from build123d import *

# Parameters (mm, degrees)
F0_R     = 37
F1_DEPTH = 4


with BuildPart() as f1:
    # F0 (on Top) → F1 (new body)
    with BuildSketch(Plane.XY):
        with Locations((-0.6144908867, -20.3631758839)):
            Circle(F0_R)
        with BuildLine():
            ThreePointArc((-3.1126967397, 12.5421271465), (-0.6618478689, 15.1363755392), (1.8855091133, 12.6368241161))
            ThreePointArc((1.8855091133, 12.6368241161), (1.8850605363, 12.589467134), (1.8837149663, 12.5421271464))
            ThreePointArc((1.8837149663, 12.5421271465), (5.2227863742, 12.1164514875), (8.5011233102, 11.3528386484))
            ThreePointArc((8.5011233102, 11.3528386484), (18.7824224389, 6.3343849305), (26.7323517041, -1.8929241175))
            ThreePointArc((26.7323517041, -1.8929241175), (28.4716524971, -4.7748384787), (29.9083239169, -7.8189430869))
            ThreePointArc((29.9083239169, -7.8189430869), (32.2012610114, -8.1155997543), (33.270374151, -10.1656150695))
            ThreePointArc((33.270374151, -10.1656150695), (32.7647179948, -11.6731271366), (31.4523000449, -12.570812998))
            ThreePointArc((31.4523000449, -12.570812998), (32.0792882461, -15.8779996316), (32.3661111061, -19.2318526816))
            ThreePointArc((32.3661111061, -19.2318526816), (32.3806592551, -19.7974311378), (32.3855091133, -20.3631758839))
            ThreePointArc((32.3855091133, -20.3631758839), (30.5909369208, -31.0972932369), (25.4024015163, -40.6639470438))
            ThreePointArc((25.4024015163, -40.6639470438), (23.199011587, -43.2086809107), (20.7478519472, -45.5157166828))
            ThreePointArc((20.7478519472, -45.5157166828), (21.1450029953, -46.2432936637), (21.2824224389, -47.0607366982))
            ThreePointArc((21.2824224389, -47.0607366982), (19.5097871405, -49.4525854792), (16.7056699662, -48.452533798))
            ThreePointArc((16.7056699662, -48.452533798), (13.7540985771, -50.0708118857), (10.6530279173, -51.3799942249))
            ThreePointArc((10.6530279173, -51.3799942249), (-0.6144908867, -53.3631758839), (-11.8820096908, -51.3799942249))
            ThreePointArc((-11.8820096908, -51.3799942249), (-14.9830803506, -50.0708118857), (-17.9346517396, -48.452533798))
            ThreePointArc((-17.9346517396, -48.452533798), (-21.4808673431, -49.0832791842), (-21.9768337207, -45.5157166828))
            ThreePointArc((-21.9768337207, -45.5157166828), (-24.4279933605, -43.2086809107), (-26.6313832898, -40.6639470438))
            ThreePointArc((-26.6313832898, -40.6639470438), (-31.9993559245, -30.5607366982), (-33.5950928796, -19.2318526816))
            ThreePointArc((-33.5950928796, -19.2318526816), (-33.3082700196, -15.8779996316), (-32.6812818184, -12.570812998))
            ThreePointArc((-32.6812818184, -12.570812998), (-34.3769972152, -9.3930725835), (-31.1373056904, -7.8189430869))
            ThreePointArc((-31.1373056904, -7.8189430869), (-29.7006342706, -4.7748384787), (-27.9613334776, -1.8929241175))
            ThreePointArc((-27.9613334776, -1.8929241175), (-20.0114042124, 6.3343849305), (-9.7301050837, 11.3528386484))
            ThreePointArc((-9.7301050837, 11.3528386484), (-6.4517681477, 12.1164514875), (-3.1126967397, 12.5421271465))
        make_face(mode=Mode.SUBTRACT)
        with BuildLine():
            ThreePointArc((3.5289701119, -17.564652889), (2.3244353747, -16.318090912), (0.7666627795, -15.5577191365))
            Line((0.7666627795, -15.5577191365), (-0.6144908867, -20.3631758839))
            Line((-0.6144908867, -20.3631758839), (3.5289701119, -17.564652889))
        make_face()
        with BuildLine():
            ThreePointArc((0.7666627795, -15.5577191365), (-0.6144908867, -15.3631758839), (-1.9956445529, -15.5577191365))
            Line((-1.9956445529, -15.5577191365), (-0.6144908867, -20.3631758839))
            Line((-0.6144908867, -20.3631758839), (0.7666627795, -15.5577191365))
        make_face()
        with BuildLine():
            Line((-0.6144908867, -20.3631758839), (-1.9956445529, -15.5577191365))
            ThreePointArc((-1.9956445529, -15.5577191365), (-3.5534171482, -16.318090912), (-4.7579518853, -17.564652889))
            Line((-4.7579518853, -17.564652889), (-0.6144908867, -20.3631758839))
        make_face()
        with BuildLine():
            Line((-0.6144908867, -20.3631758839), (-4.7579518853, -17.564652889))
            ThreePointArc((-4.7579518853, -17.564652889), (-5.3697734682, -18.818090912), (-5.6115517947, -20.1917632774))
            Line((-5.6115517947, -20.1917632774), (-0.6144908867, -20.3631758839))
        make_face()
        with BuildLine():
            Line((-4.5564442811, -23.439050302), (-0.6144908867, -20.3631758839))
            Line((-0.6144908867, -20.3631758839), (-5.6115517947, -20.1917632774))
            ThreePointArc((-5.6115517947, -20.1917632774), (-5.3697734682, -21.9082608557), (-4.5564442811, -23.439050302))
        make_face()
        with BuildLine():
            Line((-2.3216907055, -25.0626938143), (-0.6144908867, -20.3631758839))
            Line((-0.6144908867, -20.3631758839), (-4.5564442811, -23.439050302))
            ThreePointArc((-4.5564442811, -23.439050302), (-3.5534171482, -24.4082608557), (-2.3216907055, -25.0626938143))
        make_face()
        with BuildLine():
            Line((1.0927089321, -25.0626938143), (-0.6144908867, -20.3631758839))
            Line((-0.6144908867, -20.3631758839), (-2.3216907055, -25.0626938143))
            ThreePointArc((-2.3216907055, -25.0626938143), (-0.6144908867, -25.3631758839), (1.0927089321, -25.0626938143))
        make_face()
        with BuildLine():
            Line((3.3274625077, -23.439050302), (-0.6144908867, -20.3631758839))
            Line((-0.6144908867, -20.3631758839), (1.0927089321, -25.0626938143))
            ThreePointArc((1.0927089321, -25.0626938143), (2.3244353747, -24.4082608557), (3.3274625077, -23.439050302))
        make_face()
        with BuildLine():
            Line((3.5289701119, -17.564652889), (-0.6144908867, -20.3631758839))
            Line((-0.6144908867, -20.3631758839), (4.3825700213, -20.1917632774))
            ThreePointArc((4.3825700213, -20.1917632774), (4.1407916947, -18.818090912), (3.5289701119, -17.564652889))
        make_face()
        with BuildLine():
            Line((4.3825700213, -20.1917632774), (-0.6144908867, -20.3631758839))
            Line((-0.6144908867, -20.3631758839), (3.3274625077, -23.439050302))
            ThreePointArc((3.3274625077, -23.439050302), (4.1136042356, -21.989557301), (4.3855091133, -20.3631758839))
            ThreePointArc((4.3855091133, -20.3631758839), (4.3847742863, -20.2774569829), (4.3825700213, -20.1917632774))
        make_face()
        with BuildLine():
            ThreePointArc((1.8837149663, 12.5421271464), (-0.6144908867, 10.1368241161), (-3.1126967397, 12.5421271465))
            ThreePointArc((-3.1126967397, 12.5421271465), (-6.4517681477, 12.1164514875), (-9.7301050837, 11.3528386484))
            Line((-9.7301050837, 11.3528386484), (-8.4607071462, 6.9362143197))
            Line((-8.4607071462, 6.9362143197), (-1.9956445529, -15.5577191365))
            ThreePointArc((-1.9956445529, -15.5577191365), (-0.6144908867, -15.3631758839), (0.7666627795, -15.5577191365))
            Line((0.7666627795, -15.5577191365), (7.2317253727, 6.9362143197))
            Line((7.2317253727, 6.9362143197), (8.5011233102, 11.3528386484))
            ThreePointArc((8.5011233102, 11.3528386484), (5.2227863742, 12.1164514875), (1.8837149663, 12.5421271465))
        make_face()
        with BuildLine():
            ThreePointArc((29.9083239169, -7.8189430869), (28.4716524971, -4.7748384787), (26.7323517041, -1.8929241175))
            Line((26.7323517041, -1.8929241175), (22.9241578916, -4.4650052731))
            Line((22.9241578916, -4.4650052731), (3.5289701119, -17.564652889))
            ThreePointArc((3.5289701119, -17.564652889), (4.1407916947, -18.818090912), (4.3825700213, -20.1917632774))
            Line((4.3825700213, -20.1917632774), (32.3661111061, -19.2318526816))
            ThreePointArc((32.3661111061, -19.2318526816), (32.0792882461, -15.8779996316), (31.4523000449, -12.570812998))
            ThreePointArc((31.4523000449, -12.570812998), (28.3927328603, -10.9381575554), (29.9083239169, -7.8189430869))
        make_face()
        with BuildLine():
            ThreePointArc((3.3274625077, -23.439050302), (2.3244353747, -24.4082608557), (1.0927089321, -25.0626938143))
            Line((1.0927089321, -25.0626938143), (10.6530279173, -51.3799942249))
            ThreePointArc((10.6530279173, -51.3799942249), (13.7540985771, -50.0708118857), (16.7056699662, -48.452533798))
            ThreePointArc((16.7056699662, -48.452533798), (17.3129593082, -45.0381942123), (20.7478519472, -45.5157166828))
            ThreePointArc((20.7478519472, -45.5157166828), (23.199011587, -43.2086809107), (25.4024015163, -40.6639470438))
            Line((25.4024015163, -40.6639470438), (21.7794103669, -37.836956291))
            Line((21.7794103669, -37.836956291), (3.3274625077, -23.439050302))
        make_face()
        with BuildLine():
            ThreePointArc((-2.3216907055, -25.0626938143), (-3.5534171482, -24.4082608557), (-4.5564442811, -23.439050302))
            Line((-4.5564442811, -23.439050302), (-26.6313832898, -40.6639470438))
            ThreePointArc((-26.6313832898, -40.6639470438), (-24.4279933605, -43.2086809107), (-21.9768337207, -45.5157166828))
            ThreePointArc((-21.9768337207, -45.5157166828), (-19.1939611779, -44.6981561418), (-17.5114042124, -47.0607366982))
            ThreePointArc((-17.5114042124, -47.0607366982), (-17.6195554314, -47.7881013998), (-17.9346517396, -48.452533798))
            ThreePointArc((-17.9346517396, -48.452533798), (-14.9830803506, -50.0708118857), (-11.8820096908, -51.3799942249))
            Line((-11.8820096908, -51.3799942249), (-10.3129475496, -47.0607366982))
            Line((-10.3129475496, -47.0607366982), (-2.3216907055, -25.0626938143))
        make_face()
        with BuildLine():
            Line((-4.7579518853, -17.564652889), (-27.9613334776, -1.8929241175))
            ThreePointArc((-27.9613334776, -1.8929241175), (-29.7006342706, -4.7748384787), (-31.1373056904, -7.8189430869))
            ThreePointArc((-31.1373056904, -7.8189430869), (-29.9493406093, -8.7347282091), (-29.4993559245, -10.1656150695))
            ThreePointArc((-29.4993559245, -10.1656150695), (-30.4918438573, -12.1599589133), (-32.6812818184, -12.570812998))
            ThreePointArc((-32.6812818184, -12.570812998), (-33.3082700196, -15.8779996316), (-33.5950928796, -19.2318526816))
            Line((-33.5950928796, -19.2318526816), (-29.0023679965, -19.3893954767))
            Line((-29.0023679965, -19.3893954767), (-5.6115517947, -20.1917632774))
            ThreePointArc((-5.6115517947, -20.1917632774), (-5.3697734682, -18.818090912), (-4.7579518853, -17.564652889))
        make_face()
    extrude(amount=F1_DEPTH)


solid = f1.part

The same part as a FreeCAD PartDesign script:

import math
import FreeCAD as App
import Part
import Sketcher
from FreeCAD import Vector

doc = App.newDocument("Part")
body = doc.addObject("PartDesign::Body", "Body")

sketch1 = doc.addObject("Sketcher::SketchObject", "Sketch")
body.addObject(sketch1)
sketch1.AttachmentSupport = (doc.XY_Plane, [""])
sketch1.MapMode = "FlatFace"
sketch1.addGeometry([
    Part.Circle(Vector(-0.614491, -20.363176, 0), Vector(0, 0, 1), 37),
    Part.ArcOfCircle(Part.Circle(Vector(-0.614491, -20.363176, 0), Vector(0, 0, 1), 33), math.radians(106.035371), math.radians(145.964629)),
    Part.LineSegment(Vector(-9.730105, 11.352839, 0), Vector(-8.460707, 6.936214, 0)),
    Part.LineSegment(Vector(-8.460707, 6.936214, 0), Vector(-1.995645, -15.557719, 0)),
    Part.ArcOfCircle(Part.Circle(Vector(-0.614491, -20.363176, 0), Vector(0, 0, 1), 5), math.radians(106.035371), math.radians(145.964629)),
    Part.LineSegment(Vector(-4.757952, -17.564653, 0), Vector(-27.961333, -1.892924, 0)),
    Part.ArcOfCircle(Part.Circle(Vector(-0.614491, -20.363176, 0), Vector(0, 0, 1), 5), math.radians(178.035371), math.radians(217.964629)),
    Part.LineSegment(Vector(-4.556444, -23.43905, 0), Vector(-26.631383, -40.663947, 0)),
    Part.ArcOfCircle(Part.Circle(Vector(-0.614491, -20.363176, 0), Vector(0, 0, 1), 33), math.radians(178.035371), math.radians(217.964629)),
    Part.LineSegment(Vector(-33.595093, -19.231853, 0), Vector(-29.002368, -19.389395, 0)),
    Part.LineSegment(Vector(-29.002368, -19.389395, 0), Vector(-5.611552, -20.191763, 0)),
    Part.ArcOfCircle(Part.Circle(Vector(-31.999356, -10.165615, 0), Vector(0, 0, 1), 2.5), math.radians(69.829186), math.radians(254.170814)),
    Part.ArcOfCircle(Part.Circle(Vector(-31.999356, -10.165615, 0), Vector(0, 0, 1), 2.5), math.radians(0), math.radians(69.829186)),
    Part.ArcOfCircle(Part.Circle(Vector(-31.999356, -10.165615, 0), Vector(0, 0, 1), 2.5), math.radians(-105.829186), math.radians(0)),
    Part.ArcOfCircle(Part.Circle(Vector(-0.614491, -20.363176, 0), Vector(0, 0, 1), 5), math.radians(-109.964629), math.radians(-70.035371)),
    Part.LineSegment(Vector(1.092709, -25.062694, 0), Vector(10.653028, -51.379994, 0)),
    Part.ArcOfCircle(Part.Circle(Vector(-0.614491, -20.363176, 0), Vector(0, 0, 1), 33), math.radians(-109.964629), math.radians(-70.035371)),
    Part.LineSegment(Vector(-11.88201, -51.379994, 0), Vector(-10.312948, -47.060737, 0)),
    Part.LineSegment(Vector(-10.312948, -47.060737, 0), Vector(-2.321691, -25.062694, 0)),
    Part.ArcOfCircle(Part.Circle(Vector(-20.011404, -47.060737, 0), Vector(0, 0, 1), 2.5), math.radians(141.829186), math.radians(326.170814)),
    Part.ArcOfCircle(Part.Circle(Vector(-20.011404, -47.060737, 0), Vector(0, 0, 1), 2.5), math.radians(0), math.radians(141.829186)),
    Part.ArcOfCircle(Part.Circle(Vector(-20.011404, -47.060737, 0), Vector(0, 0, 1), 2.5), math.radians(-33.829186), math.radians(0)),
    Part.ArcOfCircle(Part.Circle(Vector(-0.614491, -20.363176, 0), Vector(0, 0, 1), 5), math.radians(-37.964629), math.radians(0)),
    Part.ArcOfCircle(Part.Circle(Vector(-0.614491, -20.363176, 0), Vector(0, 0, 1), 5), math.radians(0), math.radians(1.964629)),
    Part.LineSegment(Vector(4.38257, -20.191763, 0), Vector(32.366111, -19.231853, 0)),
    Part.ArcOfCircle(Part.Circle(Vector(-0.614491, -20.363176, 0), Vector(0, 0, 1), 33), math.radians(0), math.radians(1.964629)),
    Part.ArcOfCircle(Part.Circle(Vector(-0.614491, -20.363176, 0), Vector(0, 0, 1), 33), math.radians(-37.964629), math.radians(0)),
    Part.LineSegment(Vector(25.402402, -40.663947, 0), Vector(21.77941, -37.836956, 0)),
    Part.LineSegment(Vector(21.77941, -37.836956, 0), Vector(3.327463, -23.43905, 0)),
    Part.ArcOfCircle(Part.Circle(Vector(18.782422, -47.060737, 0), Vector(0, 0, 1), 2.5), math.radians(0), math.radians(38.170814)),
    Part.ArcOfCircle(Part.Circle(Vector(18.782422, -47.060737, 0), Vector(0, 0, 1), 2.5), math.radians(-146.170814), math.radians(0)),
    Part.ArcOfCircle(Part.Circle(Vector(18.782422, -47.060737, 0), Vector(0, 0, 1), 2.5), math.radians(38.170814), math.radians(213.829186)),
    Part.ArcOfCircle(Part.Circle(Vector(-0.614491, -20.363176, 0), Vector(0, 0, 1), 5), math.radians(34.035371), math.radians(73.964629)),
    Part.LineSegment(Vector(0.766663, -15.557719, 0), Vector(7.231725, 6.936214, 0)),
    Part.LineSegment(Vector(7.231725, 6.936214, 0), Vector(8.501123, 11.352839, 0)),
    Part.ArcOfCircle(Part.Circle(Vector(-0.614491, -20.363176, 0), Vector(0, 0, 1), 33), math.radians(34.035371), math.radians(73.964629)),
    Part.LineSegment(Vector(26.732352, -1.892924, 0), Vector(22.924158, -4.465005, 0)),
    Part.LineSegment(Vector(22.924158, -4.465005, 0), Vector(3.52897, -17.564653, 0)),
    Part.ArcOfCircle(Part.Circle(Vector(30.770374, -10.165615, 0), Vector(0, 0, 1), 2.5), math.radians(0), math.radians(110.170814)),
    Part.ArcOfCircle(Part.Circle(Vector(30.770374, -10.165615, 0), Vector(0, 0, 1), 2.5), math.radians(-74.170814), math.radians(0)),
    Part.ArcOfCircle(Part.Circle(Vector(30.770374, -10.165615, 0), Vector(0, 0, 1), 2.5), math.radians(110.170814), math.radians(285.829186)),
    Part.ArcOfCircle(Part.Circle(Vector(-0.614491, 12.636824, 0), Vector(0, 0, 1), 2.5), math.radians(-2.170814), math.radians(0)),
    Part.ArcOfCircle(Part.Circle(Vector(-0.614491, 12.636824, 0), Vector(0, 0, 1), 2.5), math.radians(-177.829186), math.radians(-2.170814)),
    Part.ArcOfCircle(Part.Circle(Vector(-0.614491, 12.636824, 0), Vector(0, 0, 1), 2.5), math.radians(0), math.radians(182.170814)),
], False)
sketch1.addConstraint([
    Sketcher.Constraint("Coincident", 1, 1, 2, 1),
    Sketcher.Constraint("Coincident", 2, 2, 3, 1),
    Sketcher.Constraint("Coincident", 3, 2, 4, 1),
    Sketcher.Constraint("Coincident", 4, 2, 5, 1),
    Sketcher.Constraint("Coincident", 5, 2, 1, 2),
    Sketcher.Constraint("Coincident", 6, 2, 7, 1),
    Sketcher.Constraint("Coincident", 7, 2, 8, 2),
    Sketcher.Constraint("Coincident", 8, 1, 9, 1),
    Sketcher.Constraint("Coincident", 9, 2, 10, 1),
    Sketcher.Constraint("Coincident", 10, 2, 6, 1),
    Sketcher.Constraint("Coincident", 11, 1, 12, 2),
    Sketcher.Constraint("Coincident", 12, 1, 13, 2),
    Sketcher.Constraint("Coincident", 13, 1, 11, 2),
    Sketcher.Constraint("Coincident", 14, 2, 15, 1),
    Sketcher.Constraint("Coincident", 15, 2, 16, 2),
    Sketcher.Constraint("Coincident", 16, 1, 17, 1),
    Sketcher.Constraint("Coincident", 17, 2, 18, 1),
    Sketcher.Constraint("Coincident", 18, 2, 14, 1),
    Sketcher.Constraint("Coincident", 19, 1, 20, 2),
    Sketcher.Constraint("Coincident", 20, 1, 21, 2),
    Sketcher.Constraint("Coincident", 21, 1, 19, 2),
    Sketcher.Constraint("Coincident", 22, 2, 23, 1),
    Sketcher.Constraint("Coincident", 23, 2, 24, 1),
    Sketcher.Constraint("Coincident", 24, 2, 25, 2),
    Sketcher.Constraint("Coincident", 25, 1, 26, 2),
    Sketcher.Constraint("Coincident", 26, 1, 27, 1),
    Sketcher.Constraint("Coincident", 27, 2, 28, 1),
    Sketcher.Constraint("Coincident", 28, 2, 22, 1),
    Sketcher.Constraint("Coincident", 29, 1, 30, 2),
    Sketcher.Constraint("Coincident", 30, 1, 31, 2),
    Sketcher.Constraint("Coincident", 31, 1, 29, 2),
    Sketcher.Constraint("Coincident", 32, 2, 33, 1),
    Sketcher.Constraint("Coincident", 33, 2, 34, 1),
    Sketcher.Constraint("Coincident", 34, 2, 35, 2),
    Sketcher.Constraint("Coincident", 35, 1, 36, 1),
    Sketcher.Constraint("Coincident", 36, 2, 37, 1),
    Sketcher.Constraint("Coincident", 37, 2, 32, 1),
    Sketcher.Constraint("Coincident", 38, 1, 39, 2),
    Sketcher.Constraint("Coincident", 39, 1, 40, 2),
    Sketcher.Constraint("Coincident", 40, 1, 38, 2),
    Sketcher.Constraint("Coincident", 41, 1, 42, 2),
    Sketcher.Constraint("Coincident", 42, 1, 43, 2),
    Sketcher.Constraint("Coincident", 43, 1, 41, 2),
    Sketcher.Constraint("Coincident", 1, 3, 0, 3),
    Sketcher.Constraint("Coincident", 4, 3, 0, 3),
    Sketcher.Constraint("Coincident", 6, 3, 0, 3),
    Sketcher.Constraint("Coincident", 8, 3, 0, 3),
    Sketcher.Constraint("Coincident", 12, 3, 11, 3),
    Sketcher.Constraint("Coincident", 14, 3, 0, 3),
    Sketcher.Constraint("Coincident", 16, 3, 0, 3),
    Sketcher.Constraint("Coincident", 20, 3, 19, 3),
    Sketcher.Constraint("Coincident", 22, 3, 0, 3),
    Sketcher.Constraint("Coincident", 23, 3, 0, 3),
    Sketcher.Constraint("Coincident", 25, 3, 0, 3),
    Sketcher.Constraint("Coincident", 26, 3, 0, 3),
    Sketcher.Constraint("Coincident", 30, 3, 29, 3),
    Sketcher.Constraint("Coincident", 32, 3, 0, 3),
    Sketcher.Constraint("Coincident", 35, 3, 0, 3),
    Sketcher.Constraint("Coincident", 39, 3, 38, 3),
    Sketcher.Constraint("Coincident", 42, 3, 41, 3),
    Sketcher.Constraint("Diameter", 0, 74.0),
    Sketcher.Constraint("Radius", 1, 33.0),
    Sketcher.Constraint("Radius", 4, 5.0),
    Sketcher.Constraint("Radius", 6, 5.0),
    Sketcher.Constraint("Radius", 8, 33.0),
    Sketcher.Constraint("Radius", 14, 5.0),
    Sketcher.Constraint("Radius", 16, 33.0),
    Sketcher.Constraint("Radius", 22, 5.0),
    Sketcher.Constraint("Radius", 25, 33.0),
    Sketcher.Constraint("Radius", 32, 5.0),
    Sketcher.Constraint("Radius", 35, 33.0),
    Sketcher.Constraint("Radius", 11, 2.5),
    Sketcher.Constraint("Radius", 13, 2.5),
    Sketcher.Constraint("Radius", 19, 2.5),
    Sketcher.Constraint("Radius", 21, 2.5),
    Sketcher.Constraint("Radius", 29, 2.5),
    Sketcher.Constraint("Radius", 31, 2.5),
    Sketcher.Constraint("Radius", 38, 2.5),
    Sketcher.Constraint("Radius", 40, 2.5),
    Sketcher.Constraint("Radius", 41, 2.5),
    Sketcher.Constraint("Radius", 43, 2.5),
    Sketcher.Constraint("DistanceX", -1, 1, 26, 1, 25.402402),
    Sketcher.Constraint("DistanceX", -1, 1, 39, 1, 31.4523),
    Sketcher.Constraint("DistanceX", 0, 3, -1, 1, 0.614491),
    Sketcher.Constraint("DistanceX", 41, 3, -1, 1, 0.614491),
    Sketcher.Constraint("DistanceY", -1, 1, 1, 1, 11.352839),
    Sketcher.Constraint("DistanceY", 3, 2, -1, 1, 15.557719),
    Sketcher.Constraint("DistanceX", 4, 2, -1, 1, 4.757952),
    Sketcher.Constraint("DistanceY", 6, 2, -1, 1, 23.43905),
    Sketcher.Constraint("DistanceX", 10, 2, -1, 1, 5.611552),
    Sketcher.Constraint("DistanceX", 13, 1, -1, 1, 32.681282),
    Sketcher.Constraint("DistanceX", -1, 1, 14, 2, 1.092709),
    Sketcher.Constraint("DistanceX", 16, 1, -1, 1, 11.88201),
    Sketcher.Constraint("DistanceX", 18, 2, -1, 1, 2.321691),
    Sketcher.Constraint("DistanceX", 21, 1, -1, 1, 17.934652),
    Sketcher.Constraint("DistanceX", -1, 1, 23, 2, 4.38257),
    Sketcher.Constraint("DistanceX", -1, 1, 24, 2, 32.366111),
    Sketcher.Constraint("DistanceX", -1, 1, 27, 2, 21.77941),
    Sketcher.Constraint("DistanceY", 28, 2, -1, 1, 23.43905),
    Sketcher.Constraint("DistanceX", -1, 1, 30, 1, 16.70567),
    Sketcher.Constraint("DistanceX", -1, 1, 31, 1, 20.747852),
    Sketcher.Constraint("DistanceY", 32, 2, -1, 1, 15.557719),
    Sketcher.Constraint("DistanceY", -1, 1, 34, 2, 11.352839),
    Sketcher.Constraint("DistanceX", -1, 1, 35, 1, 26.732352),
    Sketcher.Constraint("DistanceX", -1, 1, 37, 2, 3.52897),
    Sketcher.Constraint("Distance", 2, 4.595426),
    Sketcher.Constraint("Distance", 9, 4.595426),
    Sketcher.Constraint("Distance", 17, 4.595426),
    Sketcher.Constraint("Distance", 27, 4.595426),
    Sketcher.Constraint("Distance", 33, 23.404574),
    Sketcher.Constraint("Distance", 36, 4.595426),
    Sketcher.Constraint("DistanceY", 0, 3, -1, 1, 20.363176),
    Sketcher.Constraint("DistanceX", 11, 3, -1, 1, 31.999356),
    Sketcher.Constraint("DistanceY", 11, 3, -1, 1, 10.165615),
    Sketcher.Constraint("DistanceX", 19, 3, -1, 1, 20.011404),
    Sketcher.Constraint("DistanceY", 19, 3, -1, 1, 47.060737),
    Sketcher.Constraint("DistanceX", -1, 1, 29, 3, 18.782422),
    Sketcher.Constraint("DistanceY", 29, 3, -1, 1, 47.060737),
    Sketcher.Constraint("DistanceX", -1, 1, 38, 3, 30.770374),
    Sketcher.Constraint("DistanceY", 38, 3, -1, 1, 10.165615),
    Sketcher.Constraint("DistanceY", -1, 1, 41, 3, 12.636824),
    Sketcher.Constraint("DistanceX", 2, 2, -1, 1, 8.460707),
    Sketcher.Constraint("DistanceX", 5, 2, -1, 1, 27.961333),
    Sketcher.Constraint("DistanceX", 7, 2, -1, 1, 26.631383),
    Sketcher.Constraint("DistanceX", 8, 1, -1, 1, 33.595093),
    Sketcher.Constraint("DistanceX", 9, 2, -1, 1, 29.002368),
    Sketcher.Constraint("DistanceX", 11, 1, -1, 1, 31.137306),
    Sketcher.Constraint("DistanceY", 12, 1, -1, 1, 10.165615),
    Sketcher.Constraint("DistanceX", -1, 1, 15, 2, 10.653028),
    Sketcher.Constraint("DistanceX", 17, 2, -1, 1, 10.312948),
    Sketcher.Constraint("DistanceX", 19, 1, -1, 1, 21.976834),
    Sketcher.Constraint("DistanceY", 20, 1, -1, 1, 47.060737),
    Sketcher.Constraint("DistanceY", 22, 2, -1, 1, 20.363176),
    Sketcher.Constraint("DistanceY", 25, 1, -1, 1, 20.363176),
    Sketcher.Constraint("DistanceY", 29, 1, -1, 1, 47.060737),
    Sketcher.Constraint("DistanceX", -1, 1, 33, 2, 7.231725),
    Sketcher.Constraint("DistanceX", -1, 1, 36, 2, 22.924158),
    Sketcher.Constraint("DistanceY", 38, 1, -1, 1, 10.165615),
    Sketcher.Constraint("DistanceX", -1, 1, 40, 1, 29.908324),
    Sketcher.Constraint("DistanceX", -1, 1, 41, 1, 1.883715),
    Sketcher.Constraint("DistanceX", 42, 1, -1, 1, 3.112697),
    Sketcher.Constraint("DistanceY", -1, 1, 43, 1, 12.636824),
])
pad1 = doc.addObject("PartDesign::Pad", "Pad")
body.addObject(pad1)
pad1.Profile = sketch1
pad1.Length = 4

doc.recompute()
